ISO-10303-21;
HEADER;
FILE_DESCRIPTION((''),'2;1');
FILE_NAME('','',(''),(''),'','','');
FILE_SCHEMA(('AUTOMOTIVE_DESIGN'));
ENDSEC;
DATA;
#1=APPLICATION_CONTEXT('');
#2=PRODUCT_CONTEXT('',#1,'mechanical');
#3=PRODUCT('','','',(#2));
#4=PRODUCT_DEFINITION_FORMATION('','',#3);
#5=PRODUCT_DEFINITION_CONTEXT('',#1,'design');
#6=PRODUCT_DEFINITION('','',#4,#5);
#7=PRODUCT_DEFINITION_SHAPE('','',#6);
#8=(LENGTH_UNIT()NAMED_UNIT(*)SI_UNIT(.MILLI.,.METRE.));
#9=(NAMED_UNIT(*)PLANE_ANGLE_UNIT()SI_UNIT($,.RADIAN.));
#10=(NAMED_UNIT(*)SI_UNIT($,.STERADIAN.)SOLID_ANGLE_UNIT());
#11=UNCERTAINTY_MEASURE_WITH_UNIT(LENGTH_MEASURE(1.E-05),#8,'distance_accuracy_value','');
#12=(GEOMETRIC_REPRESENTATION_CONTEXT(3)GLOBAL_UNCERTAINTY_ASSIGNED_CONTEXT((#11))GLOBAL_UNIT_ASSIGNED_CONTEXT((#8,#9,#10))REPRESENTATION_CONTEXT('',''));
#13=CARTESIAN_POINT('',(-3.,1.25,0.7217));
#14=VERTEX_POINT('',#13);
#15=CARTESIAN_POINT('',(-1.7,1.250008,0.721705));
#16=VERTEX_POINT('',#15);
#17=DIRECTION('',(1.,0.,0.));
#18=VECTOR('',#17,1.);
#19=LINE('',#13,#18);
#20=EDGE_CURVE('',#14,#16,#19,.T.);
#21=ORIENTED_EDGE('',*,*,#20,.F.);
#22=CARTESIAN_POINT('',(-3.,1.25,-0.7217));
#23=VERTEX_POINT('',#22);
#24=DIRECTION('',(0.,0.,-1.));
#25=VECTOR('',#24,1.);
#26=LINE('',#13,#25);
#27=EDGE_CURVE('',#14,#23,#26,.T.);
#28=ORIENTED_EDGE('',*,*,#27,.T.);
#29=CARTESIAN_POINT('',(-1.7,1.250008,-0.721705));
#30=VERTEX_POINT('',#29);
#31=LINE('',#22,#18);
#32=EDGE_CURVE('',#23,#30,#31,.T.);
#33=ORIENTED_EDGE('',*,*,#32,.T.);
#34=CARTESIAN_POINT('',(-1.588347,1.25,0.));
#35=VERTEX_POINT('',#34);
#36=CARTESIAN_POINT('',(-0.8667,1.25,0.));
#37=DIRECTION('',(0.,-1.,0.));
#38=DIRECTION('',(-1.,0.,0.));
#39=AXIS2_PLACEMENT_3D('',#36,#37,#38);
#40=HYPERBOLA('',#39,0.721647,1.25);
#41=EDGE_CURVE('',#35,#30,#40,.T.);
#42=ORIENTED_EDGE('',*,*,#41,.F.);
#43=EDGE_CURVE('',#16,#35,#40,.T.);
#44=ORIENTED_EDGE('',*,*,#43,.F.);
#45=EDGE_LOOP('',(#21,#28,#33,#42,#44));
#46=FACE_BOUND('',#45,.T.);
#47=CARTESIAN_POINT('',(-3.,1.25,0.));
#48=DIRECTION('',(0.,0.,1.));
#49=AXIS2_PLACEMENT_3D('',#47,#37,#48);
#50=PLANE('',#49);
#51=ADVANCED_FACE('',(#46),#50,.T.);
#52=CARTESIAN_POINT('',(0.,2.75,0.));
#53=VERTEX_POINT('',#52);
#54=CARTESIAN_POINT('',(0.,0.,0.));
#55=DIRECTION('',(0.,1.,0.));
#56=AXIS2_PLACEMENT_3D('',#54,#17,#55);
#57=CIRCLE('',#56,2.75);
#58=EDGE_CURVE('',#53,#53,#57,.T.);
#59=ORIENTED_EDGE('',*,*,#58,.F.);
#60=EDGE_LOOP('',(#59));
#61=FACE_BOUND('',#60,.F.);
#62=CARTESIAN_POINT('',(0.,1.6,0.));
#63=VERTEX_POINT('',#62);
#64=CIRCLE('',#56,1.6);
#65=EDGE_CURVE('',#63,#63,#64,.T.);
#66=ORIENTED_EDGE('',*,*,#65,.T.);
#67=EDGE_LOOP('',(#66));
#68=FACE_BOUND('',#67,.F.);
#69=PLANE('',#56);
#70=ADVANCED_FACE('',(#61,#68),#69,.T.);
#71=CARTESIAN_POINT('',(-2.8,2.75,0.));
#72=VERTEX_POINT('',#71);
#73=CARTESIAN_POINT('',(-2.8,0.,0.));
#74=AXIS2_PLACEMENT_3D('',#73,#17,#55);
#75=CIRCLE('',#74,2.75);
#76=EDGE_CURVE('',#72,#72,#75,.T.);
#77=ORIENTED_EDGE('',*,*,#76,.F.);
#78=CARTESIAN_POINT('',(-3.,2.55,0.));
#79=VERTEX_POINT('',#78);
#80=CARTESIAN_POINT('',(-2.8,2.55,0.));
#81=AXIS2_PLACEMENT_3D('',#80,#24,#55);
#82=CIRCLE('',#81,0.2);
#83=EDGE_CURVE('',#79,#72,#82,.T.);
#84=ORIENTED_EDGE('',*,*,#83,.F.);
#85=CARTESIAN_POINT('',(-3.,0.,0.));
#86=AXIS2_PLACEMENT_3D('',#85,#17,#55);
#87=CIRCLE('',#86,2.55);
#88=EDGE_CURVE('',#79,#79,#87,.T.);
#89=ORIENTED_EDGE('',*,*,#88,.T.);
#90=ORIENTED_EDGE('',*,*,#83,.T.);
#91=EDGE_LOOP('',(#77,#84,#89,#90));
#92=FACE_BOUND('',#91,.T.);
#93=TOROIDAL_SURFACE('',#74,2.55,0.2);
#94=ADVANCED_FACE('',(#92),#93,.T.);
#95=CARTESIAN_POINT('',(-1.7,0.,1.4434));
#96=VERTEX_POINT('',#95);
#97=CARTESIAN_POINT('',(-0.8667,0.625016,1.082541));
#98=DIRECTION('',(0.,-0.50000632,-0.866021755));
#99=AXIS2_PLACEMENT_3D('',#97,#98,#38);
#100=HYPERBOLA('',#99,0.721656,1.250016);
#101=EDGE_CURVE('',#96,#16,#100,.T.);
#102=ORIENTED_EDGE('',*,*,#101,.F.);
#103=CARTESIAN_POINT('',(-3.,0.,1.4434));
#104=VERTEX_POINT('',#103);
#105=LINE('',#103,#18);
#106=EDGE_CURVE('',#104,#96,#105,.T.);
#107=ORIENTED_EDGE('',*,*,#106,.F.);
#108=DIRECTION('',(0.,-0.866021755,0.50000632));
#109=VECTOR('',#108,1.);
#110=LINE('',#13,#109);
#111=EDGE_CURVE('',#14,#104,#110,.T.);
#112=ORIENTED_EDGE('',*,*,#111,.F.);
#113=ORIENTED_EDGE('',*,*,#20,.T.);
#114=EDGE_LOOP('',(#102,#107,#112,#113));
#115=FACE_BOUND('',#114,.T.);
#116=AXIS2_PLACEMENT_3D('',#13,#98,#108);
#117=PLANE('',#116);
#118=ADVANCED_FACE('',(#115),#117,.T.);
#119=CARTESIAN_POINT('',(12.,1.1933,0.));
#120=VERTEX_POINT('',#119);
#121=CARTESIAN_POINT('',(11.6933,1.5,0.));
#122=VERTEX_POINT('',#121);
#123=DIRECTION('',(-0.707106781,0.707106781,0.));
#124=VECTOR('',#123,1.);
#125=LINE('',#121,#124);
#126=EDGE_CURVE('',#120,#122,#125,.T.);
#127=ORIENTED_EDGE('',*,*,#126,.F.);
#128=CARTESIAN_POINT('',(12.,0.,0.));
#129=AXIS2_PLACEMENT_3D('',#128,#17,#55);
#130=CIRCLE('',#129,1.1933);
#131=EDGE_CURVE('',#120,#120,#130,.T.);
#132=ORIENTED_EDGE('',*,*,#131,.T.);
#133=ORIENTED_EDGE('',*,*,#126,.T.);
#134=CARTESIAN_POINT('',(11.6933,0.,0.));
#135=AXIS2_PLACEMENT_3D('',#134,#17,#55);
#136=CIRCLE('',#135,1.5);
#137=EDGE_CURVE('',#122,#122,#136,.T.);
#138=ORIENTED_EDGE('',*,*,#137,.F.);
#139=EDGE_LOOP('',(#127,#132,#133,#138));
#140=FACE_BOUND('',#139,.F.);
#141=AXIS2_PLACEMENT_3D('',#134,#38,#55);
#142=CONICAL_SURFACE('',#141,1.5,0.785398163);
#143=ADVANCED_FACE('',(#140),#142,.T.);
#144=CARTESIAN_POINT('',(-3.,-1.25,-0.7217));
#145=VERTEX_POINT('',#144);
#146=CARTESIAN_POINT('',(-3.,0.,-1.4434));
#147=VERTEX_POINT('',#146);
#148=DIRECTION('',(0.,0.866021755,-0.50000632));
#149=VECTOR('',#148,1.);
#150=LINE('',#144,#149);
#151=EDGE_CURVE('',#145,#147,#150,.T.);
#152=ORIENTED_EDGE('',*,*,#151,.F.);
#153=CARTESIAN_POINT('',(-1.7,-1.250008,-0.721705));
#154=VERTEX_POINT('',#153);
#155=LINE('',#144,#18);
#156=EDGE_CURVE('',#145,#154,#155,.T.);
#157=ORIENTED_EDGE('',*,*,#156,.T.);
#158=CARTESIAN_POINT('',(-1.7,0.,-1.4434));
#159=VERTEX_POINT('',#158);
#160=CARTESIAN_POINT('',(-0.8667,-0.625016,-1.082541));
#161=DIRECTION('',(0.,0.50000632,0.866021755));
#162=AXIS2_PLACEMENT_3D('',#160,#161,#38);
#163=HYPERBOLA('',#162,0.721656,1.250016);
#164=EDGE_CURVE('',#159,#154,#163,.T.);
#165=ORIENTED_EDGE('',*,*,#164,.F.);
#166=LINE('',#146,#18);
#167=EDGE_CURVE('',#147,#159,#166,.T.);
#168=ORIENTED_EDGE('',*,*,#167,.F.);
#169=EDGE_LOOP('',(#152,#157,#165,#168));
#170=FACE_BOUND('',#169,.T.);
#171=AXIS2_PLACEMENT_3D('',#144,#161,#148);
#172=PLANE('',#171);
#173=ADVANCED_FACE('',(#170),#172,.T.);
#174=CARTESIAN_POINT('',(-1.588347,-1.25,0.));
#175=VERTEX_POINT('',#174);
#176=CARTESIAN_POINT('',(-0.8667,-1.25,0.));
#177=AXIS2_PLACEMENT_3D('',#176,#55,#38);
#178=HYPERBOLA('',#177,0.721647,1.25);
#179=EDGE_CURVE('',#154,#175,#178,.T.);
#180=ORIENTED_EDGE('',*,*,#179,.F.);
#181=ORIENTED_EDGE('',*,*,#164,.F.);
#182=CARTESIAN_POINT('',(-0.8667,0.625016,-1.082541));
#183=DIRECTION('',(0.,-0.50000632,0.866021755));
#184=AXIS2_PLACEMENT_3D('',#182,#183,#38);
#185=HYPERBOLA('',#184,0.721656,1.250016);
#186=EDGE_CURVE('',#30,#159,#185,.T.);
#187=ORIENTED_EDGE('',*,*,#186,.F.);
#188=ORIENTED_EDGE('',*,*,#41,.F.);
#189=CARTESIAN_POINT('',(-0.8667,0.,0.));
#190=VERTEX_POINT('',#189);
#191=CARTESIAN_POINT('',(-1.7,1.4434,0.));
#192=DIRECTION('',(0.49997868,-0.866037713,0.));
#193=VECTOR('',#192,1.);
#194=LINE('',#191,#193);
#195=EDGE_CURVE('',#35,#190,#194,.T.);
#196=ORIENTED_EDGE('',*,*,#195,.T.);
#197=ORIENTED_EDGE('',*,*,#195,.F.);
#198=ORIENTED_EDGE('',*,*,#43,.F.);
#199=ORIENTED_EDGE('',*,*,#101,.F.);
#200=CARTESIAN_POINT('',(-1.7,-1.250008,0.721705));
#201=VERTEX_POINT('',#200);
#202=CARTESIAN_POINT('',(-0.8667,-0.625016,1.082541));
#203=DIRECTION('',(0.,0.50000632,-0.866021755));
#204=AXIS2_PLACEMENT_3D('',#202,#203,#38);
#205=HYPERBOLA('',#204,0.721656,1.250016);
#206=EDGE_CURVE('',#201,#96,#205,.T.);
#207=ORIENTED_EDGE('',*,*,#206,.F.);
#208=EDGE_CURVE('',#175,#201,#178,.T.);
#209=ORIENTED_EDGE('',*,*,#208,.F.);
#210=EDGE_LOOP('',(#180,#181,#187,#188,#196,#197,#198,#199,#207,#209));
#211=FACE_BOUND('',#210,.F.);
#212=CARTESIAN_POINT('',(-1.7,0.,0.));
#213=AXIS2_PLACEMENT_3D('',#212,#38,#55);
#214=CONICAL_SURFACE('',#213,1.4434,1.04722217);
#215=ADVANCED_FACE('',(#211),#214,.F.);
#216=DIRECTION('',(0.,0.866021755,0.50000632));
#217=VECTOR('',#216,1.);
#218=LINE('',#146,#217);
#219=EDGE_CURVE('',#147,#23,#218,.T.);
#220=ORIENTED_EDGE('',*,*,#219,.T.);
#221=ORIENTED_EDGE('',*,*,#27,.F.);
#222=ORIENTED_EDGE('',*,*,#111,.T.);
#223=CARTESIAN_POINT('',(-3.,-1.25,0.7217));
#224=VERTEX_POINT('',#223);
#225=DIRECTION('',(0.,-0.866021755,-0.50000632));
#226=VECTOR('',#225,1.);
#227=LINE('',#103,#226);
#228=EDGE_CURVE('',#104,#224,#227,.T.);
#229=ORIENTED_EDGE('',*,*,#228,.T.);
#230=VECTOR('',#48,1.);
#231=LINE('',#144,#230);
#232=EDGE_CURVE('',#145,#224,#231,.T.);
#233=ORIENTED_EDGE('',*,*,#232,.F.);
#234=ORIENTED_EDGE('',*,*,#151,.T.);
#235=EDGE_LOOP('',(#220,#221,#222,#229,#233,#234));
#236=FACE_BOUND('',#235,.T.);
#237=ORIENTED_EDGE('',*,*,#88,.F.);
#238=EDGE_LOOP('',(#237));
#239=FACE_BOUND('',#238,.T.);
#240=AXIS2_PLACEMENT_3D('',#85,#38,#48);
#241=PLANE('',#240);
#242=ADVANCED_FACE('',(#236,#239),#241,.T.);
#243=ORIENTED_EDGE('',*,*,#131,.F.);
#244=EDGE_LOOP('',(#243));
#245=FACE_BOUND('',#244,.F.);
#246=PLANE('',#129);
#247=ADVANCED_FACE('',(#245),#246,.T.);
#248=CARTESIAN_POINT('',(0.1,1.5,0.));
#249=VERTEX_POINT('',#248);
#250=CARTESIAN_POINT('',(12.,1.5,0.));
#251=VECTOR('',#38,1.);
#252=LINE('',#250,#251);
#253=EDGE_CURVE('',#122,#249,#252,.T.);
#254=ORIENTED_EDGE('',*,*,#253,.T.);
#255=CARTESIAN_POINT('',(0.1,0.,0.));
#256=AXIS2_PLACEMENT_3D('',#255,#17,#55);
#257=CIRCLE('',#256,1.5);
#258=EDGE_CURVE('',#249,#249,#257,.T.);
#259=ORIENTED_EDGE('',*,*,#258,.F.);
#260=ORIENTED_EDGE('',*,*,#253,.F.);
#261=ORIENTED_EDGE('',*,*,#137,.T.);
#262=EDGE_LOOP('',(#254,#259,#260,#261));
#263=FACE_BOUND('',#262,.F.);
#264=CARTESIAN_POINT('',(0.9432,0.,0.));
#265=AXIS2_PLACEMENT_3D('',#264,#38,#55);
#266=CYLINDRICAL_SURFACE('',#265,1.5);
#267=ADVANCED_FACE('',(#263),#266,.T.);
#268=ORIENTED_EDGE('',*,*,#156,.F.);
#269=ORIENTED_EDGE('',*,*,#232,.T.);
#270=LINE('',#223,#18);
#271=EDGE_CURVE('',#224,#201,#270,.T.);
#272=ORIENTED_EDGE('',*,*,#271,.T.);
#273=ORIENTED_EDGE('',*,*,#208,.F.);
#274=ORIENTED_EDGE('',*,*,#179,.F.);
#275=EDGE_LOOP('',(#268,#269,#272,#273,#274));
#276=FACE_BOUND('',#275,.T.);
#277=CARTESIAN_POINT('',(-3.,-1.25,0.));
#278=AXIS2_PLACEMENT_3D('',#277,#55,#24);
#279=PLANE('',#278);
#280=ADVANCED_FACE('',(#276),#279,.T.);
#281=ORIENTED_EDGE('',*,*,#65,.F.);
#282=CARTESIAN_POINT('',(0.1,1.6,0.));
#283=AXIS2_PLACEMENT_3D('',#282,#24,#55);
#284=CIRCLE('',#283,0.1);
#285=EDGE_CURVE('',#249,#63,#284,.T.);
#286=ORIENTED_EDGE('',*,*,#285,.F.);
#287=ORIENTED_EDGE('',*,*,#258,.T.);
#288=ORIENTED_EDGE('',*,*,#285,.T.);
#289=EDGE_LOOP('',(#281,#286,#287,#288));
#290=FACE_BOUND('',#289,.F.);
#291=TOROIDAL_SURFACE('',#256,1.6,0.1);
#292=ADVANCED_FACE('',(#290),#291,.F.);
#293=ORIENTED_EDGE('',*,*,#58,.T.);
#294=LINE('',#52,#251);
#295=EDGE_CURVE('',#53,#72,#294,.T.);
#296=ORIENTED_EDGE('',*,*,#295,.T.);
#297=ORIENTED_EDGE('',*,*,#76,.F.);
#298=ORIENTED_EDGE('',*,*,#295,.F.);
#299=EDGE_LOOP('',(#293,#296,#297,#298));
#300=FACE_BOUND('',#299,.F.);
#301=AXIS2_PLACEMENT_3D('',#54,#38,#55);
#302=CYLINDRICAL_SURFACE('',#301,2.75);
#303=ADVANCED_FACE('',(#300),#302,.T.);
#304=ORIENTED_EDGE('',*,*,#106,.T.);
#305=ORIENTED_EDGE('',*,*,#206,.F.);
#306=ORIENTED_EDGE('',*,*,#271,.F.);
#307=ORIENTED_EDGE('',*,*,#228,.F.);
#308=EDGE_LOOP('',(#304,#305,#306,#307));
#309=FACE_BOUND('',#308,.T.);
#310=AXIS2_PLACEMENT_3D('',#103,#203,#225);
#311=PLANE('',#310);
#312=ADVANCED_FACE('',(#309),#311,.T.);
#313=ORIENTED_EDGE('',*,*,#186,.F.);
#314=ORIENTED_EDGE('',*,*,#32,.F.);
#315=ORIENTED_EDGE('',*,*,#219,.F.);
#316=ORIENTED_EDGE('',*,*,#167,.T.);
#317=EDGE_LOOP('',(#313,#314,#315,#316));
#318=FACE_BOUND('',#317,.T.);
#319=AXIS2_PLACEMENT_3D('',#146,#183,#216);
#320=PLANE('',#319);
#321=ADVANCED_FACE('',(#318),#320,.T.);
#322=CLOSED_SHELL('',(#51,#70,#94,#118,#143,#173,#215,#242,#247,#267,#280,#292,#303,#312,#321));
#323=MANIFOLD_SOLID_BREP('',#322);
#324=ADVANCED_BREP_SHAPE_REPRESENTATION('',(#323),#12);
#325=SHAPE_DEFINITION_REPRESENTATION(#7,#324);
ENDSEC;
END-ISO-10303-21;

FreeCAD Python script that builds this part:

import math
import FreeCAD as App
import Part
import Sketcher
Q = App.Units.Quantity


def edges_at(feature, points):
    """Names of the edges that pass closest to the given points."""
    edges = feature.Shape.Edges
    near = lambda p: min(range(len(edges)), key=lambda i: edges[i].distToShape(Part.Vertex(*p))[0])
    return sorted({f"Edge{near(p) + 1}" for p in points})

doc = App.newDocument("Part")
body = doc.addObject("PartDesign::Body", "Body")

sketch1 = doc.addObject("Sketcher::SketchObject", "Sketch")
body.addObject(sketch1)
sketch1.AttachmentSupport = (doc.XY_Plane, [""])
sketch1.MapMode = "FlatFace"
sketch1.addGeometry([
    Part.LineSegment(App.Vector(-1.7, 1.4434, 0), App.Vector(-0.8667, 0, 0)),
    Part.LineSegment(App.Vector(-0.8667, 0, 0), App.Vector(12, 0, 0)),
    Part.LineSegment(App.Vector(12, 0, 0), App.Vector(12, 1.5, 0)),
    Part.LineSegment(App.Vector(12, 1.5, 0), App.Vector(0, 1.5, 0)),
    Part.LineSegment(App.Vector(0, 1.5, 0), App.Vector(0, 2.75, 0)),
    Part.LineSegment(App.Vector(0, 2.75, 0), App.Vector(-3, 2.75, 0)),
    Part.LineSegment(App.Vector(-3, 2.75, 0), App.Vector(-3, 1.4434, 0)),
    Part.LineSegment(App.Vector(-3, 1.4434, 0), App.Vector(-1.7, 1.4434, 0)),
], False)
sketch1.addConstraint([
    Sketcher.Constraint("Coincident", 0, 2, 1, 1),
    Sketcher.Constraint("Coincident", 1, 2, 2, 1),
    Sketcher.Constraint("Coincident", 2, 2, 3, 1),
    Sketcher.Constraint("Coincident", 3, 2, 4, 1),
    Sketcher.Constraint("Coincident", 4, 2, 5, 1),
    Sketcher.Constraint("Coincident", 5, 2, 6, 1),
    Sketcher.Constraint("Coincident", 6, 2, 7, 1),
    Sketcher.Constraint("Coincident", 7, 2, 0, 1),
    Sketcher.Constraint("Horizontal", 1),
    Sketcher.Constraint("Vertical", 2),
    Sketcher.Constraint("Horizontal", 3),
    Sketcher.Constraint("Vertical", 4),
    Sketcher.Constraint("Horizontal", 5),
    Sketcher.Constraint("Vertical", 6),
    Sketcher.Constraint("Horizontal", 7),
    Sketcher.Constraint("PointOnObject", 0, 2, -1),
    Sketcher.Constraint("PointOnObject", 3, 2, -2),
    Sketcher.Constraint("DistanceX", 3, 2, 3, 1, 12.0),
    Sketcher.Constraint("DistanceX", 5, 2, 5, 1, 3.0),
    Sketcher.Constraint("DistanceX", 7, 1, 7, 2, 1.3),
    Sketcher.Constraint("DistanceY", 2, 1, 2, 2, 1.5),
    Sketcher.Constraint("DistanceY", 4, 1, 4, 2, 1.25),
    Sketcher.Constraint("DistanceX", 1, 1, 1, 2, 12.8667),
    Sketcher.Constraint("DistanceY", 6, 2, 6, 1, 1.3066),
])
revolution = doc.addObject("PartDesign::Revolution", "Revolution")
body.addObject(revolution)
revolution.Profile = sketch1
revolution.ReferenceAxis = (sketch1, ["H_Axis"])
revolution.Angle = 360

sketch2 = doc.addObject("Sketcher::SketchObject", "Sketch001")
body.addObject(sketch2)
sketch2.AttachmentSupport = (doc.YZ_Plane, [""])
sketch2.MapMode = "FlatFace"
sketch2.AttachmentOffset = App.Placement(App.Vector(0, 0, -3), App.Rotation())
sketch2.addGeometry([
    Part.LineSegment(App.Vector(1.25, 0.7217, 0), App.Vector(0, 1.4434, 0)),
    Part.ArcOfCircle(Part.Circle(App.Vector(0, 0, 0), App.Vector(0, 0, 1), 1.4434), math.radians(30.000418), math.radians(90)),
    Part.ArcOfCircle(Part.Circle(App.Vector(0, 0, 0), App.Vector(0, 0, 1), 1.4434), math.radians(90), math.radians(149.999582)),
    Part.LineSegment(App.Vector(0, 1.4434, 0), App.Vector(-1.25, 0.7217, 0)),
    Part.ArcOfCircle(Part.Circle(App.Vector(0, 0, 0), App.Vector(0, 0, 1), 1.4434), math.radians(-30.000418), math.radians(30.000418)),
    Part.LineSegment(App.Vector(1.25, 0.7217, 0), App.Vector(1.25, -0.7217, 0)),
    Part.LineSegment(App.Vector(-1.25, 0.7217, 0), App.Vector(-1.25, -0.7217, 0)),
    Part.ArcOfCircle(Part.Circle(App.Vector(0, 0, 0), App.Vector(0, 0, 1), 1.4434), math.radians(149.999582), math.radians(210.000418)),
    Part.LineSegment(App.Vector(-1.25, -0.7217, 0), App.Vector(0, -1.4434, 0)),
    Part.ArcOfCircle(Part.Circle(App.Vector(0, 0, 0), App.Vector(0, 0, 1), 1.4434), math.radians(-149.999582), math.radians(-90)),
    Part.ArcOfCircle(Part.Circle(App.Vector(0, 0, 0), App.Vector(0, 0, 1), 1.4434), math.radians(-90), math.radians(-30.000418)),
    Part.LineSegment(App.Vector(0, -1.4434, 0), App.Vector(1.25, -0.7217, 0)),
], False)
sketch2.addConstraint([
    Sketcher.Constraint("Coincident", 0, 1, 1, 1),
    Sketcher.Constraint("Coincident", 1, 2, 0, 2),
    Sketcher.Constraint("Coincident", 2, 1, 3, 1),
    Sketcher.Constraint("Coincident", 3, 2, 2, 2),
    Sketcher.Constraint("Coincident", 4, 1, 5, 2),
    Sketcher.Constraint("Coincident", 5, 1, 4, 2),
    Sketcher.Constraint("Coincident", 6, 1, 7, 1),
    Sketcher.Constraint("Coincident", 7, 2, 6, 2),
    Sketcher.Constraint("Coincident", 8, 1, 9, 1),
    Sketcher.Constraint("Coincident", 9, 2, 8, 2),
    Sketcher.Constraint("Coincident", 10, 1, 11, 1),
    Sketcher.Constraint("Coincident", 11, 2, 10, 2),
    Sketcher.Constraint("Vertical", 5),
    Sketcher.Constraint("Vertical", 6),
    Sketcher.Constraint("Coincident", 1, 3, -1, 1),
    Sketcher.Constraint("Coincident", 2, 3, -1, 1),
    Sketcher.Constraint("Coincident", 4, 3, -1, 1),
    Sketcher.Constraint("Coincident", 7, 3, -1, 1),
    Sketcher.Constraint("Coincident", 9, 3, -1, 1),
    Sketcher.Constraint("Coincident", 10, 3, -1, 1),
    Sketcher.Constraint("Coincident", 2, 1, 1, 2),
    Sketcher.Constraint("Coincident", 5, 1, 0, 1),
    Sketcher.Constraint("Coincident", 6, 1, 3, 2),
    Sketcher.Constraint("Coincident", 8, 1, 7, 2),
    Sketcher.Constraint("Coincident", 10, 1, 9, 2),
    Sketcher.Constraint("PointOnObject", 1, 2, -2),
    Sketcher.Constraint("PointOnObject", 9, 2, -2),
    Sketcher.Constraint("Parallel", 0, 8),
    Sketcher.Constraint("Parallel", 3, 11),
    Sketcher.Constraint("Angle", 0, Q("149.9996 deg")),
    Sketcher.Constraint("Radius", 1, 1.4434),
])
pad1 = doc.addObject("PartDesign::Pad", "Pad")
body.addObject(pad1)
pad1.Profile = sketch2
pad1.Type = "UpToFirst"
doc.recompute()

fillet = doc.addObject("PartDesign::Fillet", "Fillet")
body.addObject(fillet)
fillet.Base = (pad1, edges_at(pad1, [(-3, -2.75, 0)]))
fillet.Radius = 0.2
doc.recompute()

chamfer = doc.addObject("PartDesign::Chamfer", "Chamfer")
body.addObject(chamfer)
chamfer.Base = (fillet, edges_at(fillet, [(12, -1.5, 0)]))
chamfer.ChamferType = "Two distances"
chamfer.Size = 0.3067
chamfer.Size2 = 0.3067
doc.recompute()

fillet2 = doc.addObject("PartDesign::Fillet", "Fillet001")
body.addObject(fillet2)
fillet2.Base = (chamfer, edges_at(chamfer, [(0, -1.5, 0)]))
fillet2.Radius = 0.1

doc.recompute()
